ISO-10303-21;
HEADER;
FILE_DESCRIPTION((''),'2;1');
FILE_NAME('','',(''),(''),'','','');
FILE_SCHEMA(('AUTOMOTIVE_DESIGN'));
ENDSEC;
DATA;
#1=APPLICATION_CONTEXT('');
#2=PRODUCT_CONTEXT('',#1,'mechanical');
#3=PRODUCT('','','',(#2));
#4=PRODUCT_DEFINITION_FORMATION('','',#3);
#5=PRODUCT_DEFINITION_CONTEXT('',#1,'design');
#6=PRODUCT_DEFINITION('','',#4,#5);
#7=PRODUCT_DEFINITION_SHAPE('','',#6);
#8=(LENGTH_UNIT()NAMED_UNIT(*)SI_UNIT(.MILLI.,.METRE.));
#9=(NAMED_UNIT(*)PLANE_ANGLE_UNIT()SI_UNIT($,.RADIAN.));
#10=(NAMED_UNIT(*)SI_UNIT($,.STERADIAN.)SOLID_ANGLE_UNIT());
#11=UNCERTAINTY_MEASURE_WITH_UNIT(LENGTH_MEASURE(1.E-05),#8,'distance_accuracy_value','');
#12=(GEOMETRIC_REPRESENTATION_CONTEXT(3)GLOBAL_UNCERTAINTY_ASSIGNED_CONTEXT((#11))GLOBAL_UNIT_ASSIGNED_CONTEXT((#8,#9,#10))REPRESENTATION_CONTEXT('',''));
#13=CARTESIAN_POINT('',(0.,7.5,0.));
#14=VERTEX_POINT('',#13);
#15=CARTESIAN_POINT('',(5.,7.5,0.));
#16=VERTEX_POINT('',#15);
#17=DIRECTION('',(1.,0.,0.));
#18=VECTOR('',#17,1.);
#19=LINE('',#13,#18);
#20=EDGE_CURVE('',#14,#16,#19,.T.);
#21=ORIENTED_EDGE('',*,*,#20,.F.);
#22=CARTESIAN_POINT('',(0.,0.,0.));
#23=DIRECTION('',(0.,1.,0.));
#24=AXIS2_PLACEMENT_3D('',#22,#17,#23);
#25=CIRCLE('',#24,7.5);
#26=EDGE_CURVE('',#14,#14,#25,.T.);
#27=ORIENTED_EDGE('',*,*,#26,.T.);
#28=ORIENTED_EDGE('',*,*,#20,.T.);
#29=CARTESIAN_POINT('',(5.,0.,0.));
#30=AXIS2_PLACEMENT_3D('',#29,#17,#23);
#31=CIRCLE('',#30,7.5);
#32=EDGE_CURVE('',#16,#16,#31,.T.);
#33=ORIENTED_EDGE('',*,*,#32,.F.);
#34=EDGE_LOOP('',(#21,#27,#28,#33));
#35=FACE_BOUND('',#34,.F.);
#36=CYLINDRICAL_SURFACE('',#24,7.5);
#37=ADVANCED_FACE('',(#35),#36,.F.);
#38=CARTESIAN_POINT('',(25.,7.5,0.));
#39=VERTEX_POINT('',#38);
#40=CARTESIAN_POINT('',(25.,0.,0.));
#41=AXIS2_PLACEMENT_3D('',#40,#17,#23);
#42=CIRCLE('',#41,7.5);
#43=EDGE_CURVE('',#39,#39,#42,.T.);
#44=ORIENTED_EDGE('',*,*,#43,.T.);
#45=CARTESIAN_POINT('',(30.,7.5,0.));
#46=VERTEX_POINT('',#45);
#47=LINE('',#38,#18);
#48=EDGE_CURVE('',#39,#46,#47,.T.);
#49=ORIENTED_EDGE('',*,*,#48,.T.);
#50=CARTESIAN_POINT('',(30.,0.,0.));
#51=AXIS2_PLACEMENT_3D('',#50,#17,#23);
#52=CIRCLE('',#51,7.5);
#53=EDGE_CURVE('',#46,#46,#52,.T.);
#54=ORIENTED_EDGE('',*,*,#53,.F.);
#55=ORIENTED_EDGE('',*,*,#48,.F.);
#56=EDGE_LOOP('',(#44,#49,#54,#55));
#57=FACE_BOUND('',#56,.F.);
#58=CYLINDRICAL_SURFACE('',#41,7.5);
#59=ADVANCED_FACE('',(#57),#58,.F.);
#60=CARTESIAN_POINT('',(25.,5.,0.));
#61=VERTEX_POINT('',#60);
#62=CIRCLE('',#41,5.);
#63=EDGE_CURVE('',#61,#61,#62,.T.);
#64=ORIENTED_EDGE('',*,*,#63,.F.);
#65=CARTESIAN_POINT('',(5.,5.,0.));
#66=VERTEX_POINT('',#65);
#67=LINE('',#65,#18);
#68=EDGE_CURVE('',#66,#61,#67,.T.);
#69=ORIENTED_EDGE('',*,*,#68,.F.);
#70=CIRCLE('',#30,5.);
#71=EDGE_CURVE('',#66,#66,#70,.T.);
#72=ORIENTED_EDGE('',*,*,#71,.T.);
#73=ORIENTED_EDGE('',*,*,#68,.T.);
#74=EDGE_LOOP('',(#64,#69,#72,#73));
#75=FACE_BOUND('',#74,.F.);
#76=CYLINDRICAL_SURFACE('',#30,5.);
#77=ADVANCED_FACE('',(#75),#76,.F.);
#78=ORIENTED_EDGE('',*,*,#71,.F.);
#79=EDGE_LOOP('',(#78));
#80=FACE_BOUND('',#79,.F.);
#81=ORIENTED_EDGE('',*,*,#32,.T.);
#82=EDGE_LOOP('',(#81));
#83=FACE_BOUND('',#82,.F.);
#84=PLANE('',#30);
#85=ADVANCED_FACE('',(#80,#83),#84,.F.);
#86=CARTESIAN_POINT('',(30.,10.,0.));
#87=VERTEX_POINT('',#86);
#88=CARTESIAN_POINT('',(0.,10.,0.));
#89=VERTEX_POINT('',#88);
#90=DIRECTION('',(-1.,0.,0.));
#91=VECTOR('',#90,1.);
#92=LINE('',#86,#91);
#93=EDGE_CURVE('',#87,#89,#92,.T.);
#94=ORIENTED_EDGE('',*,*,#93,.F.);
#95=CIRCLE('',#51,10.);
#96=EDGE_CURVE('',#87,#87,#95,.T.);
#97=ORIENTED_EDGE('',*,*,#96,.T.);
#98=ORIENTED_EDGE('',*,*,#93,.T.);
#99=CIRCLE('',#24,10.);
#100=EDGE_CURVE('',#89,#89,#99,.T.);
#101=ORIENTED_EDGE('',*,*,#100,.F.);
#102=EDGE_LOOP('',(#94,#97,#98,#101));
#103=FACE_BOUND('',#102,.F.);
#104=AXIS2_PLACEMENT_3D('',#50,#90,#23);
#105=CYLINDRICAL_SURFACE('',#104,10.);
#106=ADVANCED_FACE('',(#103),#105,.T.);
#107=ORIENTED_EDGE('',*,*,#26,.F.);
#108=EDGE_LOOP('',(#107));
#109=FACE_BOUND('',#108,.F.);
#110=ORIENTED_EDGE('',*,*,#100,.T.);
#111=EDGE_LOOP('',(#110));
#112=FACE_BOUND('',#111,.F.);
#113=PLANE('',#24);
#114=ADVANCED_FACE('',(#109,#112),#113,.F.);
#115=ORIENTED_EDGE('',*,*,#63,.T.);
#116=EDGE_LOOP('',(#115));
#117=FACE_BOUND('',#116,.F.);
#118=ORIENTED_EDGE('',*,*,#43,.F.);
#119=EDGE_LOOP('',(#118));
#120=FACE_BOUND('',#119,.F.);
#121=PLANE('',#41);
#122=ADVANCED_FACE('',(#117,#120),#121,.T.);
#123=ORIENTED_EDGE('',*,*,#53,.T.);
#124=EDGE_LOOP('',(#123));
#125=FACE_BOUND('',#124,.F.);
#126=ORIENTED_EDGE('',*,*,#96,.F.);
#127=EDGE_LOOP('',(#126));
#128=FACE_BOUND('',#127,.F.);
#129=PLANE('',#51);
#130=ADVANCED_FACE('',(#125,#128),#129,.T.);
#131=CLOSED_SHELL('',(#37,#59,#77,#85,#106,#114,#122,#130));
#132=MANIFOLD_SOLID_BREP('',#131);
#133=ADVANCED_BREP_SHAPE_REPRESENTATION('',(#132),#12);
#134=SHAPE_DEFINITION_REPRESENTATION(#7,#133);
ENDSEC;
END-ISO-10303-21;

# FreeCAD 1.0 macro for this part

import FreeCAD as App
import Part
import Sketcher

doc = App.newDocument("Part")
params = doc.addObject("Spreadsheet::Sheet", "Params")
for row, (alias, value) in enumerate([
    ("sketch1_width", "5 mm"),
    ("sketch1_width2", "20 mm"),
    ("sketch1_height", "2.5 mm"),
    ("revolution_angle", "360 deg"),
], start=1):
    params.set(f"A{row}", alias)
    params.set(f"B{row}", "=" + value)
    params.setAlias(f"B{row}", alias)

body = doc.addObject("PartDesign::Body", "Body")

sketch1 = body.newObject("Sketcher::SketchObject", "Sketch")
sketch1.AttachmentSupport = (doc.getObject("XY_Plane"), [""])
sketch1.MapMode = "FlatFace"
sketch1.addGeometry([
    Part.LineSegment(App.Vector(0, 10, 0), App.Vector(0, 7.5, 0)),
    Part.LineSegment(App.Vector(0, 7.5, 0), App.Vector(5, 7.5, 0)),
    Part.LineSegment(App.Vector(5, 7.5, 0), App.Vector(5, 5, 0)),
    Part.LineSegment(App.Vector(5, 5, 0), App.Vector(25, 5, 0)),
    Part.LineSegment(App.Vector(25, 5, 0), App.Vector(25, 7.5, 0)),
    Part.LineSegment(App.Vector(25, 7.5, 0), App.Vector(30, 7.5, 0)),
    Part.LineSegment(App.Vector(30, 7.5, 0), App.Vector(30, 10, 0)),
    Part.LineSegment(App.Vector(30, 10, 0), App.Vector(0, 10, 0)),
], False)
sketch1.addConstraint([
    Sketcher.Constraint("Coincident", 0, 2, 1, 1),
    Sketcher.Constraint("Coincident", 1, 2, 2, 1),
    Sketcher.Constraint("Coincident", 2, 2, 3, 1),
    Sketcher.Constraint("Coincident", 3, 2, 4, 1),
    Sketcher.Constraint("Coincident", 4, 2, 5, 1),
    Sketcher.Constraint("Coincident", 5, 2, 6, 1),
    Sketcher.Constraint("Coincident", 6, 2, 7, 1),
    Sketcher.Constraint("Coincident", 7, 2, 0, 1),
    Sketcher.Constraint("Vertical", 0),
    Sketcher.Constraint("Horizontal", 1),
    Sketcher.Constraint("Vertical", 2),
    Sketcher.Constraint("Horizontal", 3),
    Sketcher.Constraint("Vertical", 4),
    Sketcher.Constraint("Horizontal", 5),
    Sketcher.Constraint("Vertical", 6),
    Sketcher.Constraint("Horizontal", 7),
    Sketcher.Constraint("PointOnObject", 0, 2, -2),
    Sketcher.Constraint("Horizontal", 1, 2, 4, 2),
    Sketcher.Constraint("Equal", 1, 5),
    Sketcher.Constraint("Equal", 0, 2),
    Sketcher.Constraint("DistanceX", 1, 1, 1, 2, 5.0),
    Sketcher.Constraint("DistanceX", 3, 1, 3, 2, 20.0),
    Sketcher.Constraint("DistanceY", 0, 2, 0, 1, 2.5),
    Sketcher.Constraint("DistanceY", -1, 1, 2, 2, 5.0),
])
sketch1.setExpression("Constraints[20]", "Params.sketch1_width")
sketch1.setExpression("Constraints[21]", "Params.sketch1_width2")
sketch1.setExpression("Constraints[22]", "Params.sketch1_height")
revolution = body.newObject("PartDesign::Revolution", "Revolution")
revolution.Profile = sketch1
revolution.ReferenceAxis = (sketch1, ["H_Axis"])
revolution.setExpression("Angle", "Params.revolution_angle")

doc.recompute()
